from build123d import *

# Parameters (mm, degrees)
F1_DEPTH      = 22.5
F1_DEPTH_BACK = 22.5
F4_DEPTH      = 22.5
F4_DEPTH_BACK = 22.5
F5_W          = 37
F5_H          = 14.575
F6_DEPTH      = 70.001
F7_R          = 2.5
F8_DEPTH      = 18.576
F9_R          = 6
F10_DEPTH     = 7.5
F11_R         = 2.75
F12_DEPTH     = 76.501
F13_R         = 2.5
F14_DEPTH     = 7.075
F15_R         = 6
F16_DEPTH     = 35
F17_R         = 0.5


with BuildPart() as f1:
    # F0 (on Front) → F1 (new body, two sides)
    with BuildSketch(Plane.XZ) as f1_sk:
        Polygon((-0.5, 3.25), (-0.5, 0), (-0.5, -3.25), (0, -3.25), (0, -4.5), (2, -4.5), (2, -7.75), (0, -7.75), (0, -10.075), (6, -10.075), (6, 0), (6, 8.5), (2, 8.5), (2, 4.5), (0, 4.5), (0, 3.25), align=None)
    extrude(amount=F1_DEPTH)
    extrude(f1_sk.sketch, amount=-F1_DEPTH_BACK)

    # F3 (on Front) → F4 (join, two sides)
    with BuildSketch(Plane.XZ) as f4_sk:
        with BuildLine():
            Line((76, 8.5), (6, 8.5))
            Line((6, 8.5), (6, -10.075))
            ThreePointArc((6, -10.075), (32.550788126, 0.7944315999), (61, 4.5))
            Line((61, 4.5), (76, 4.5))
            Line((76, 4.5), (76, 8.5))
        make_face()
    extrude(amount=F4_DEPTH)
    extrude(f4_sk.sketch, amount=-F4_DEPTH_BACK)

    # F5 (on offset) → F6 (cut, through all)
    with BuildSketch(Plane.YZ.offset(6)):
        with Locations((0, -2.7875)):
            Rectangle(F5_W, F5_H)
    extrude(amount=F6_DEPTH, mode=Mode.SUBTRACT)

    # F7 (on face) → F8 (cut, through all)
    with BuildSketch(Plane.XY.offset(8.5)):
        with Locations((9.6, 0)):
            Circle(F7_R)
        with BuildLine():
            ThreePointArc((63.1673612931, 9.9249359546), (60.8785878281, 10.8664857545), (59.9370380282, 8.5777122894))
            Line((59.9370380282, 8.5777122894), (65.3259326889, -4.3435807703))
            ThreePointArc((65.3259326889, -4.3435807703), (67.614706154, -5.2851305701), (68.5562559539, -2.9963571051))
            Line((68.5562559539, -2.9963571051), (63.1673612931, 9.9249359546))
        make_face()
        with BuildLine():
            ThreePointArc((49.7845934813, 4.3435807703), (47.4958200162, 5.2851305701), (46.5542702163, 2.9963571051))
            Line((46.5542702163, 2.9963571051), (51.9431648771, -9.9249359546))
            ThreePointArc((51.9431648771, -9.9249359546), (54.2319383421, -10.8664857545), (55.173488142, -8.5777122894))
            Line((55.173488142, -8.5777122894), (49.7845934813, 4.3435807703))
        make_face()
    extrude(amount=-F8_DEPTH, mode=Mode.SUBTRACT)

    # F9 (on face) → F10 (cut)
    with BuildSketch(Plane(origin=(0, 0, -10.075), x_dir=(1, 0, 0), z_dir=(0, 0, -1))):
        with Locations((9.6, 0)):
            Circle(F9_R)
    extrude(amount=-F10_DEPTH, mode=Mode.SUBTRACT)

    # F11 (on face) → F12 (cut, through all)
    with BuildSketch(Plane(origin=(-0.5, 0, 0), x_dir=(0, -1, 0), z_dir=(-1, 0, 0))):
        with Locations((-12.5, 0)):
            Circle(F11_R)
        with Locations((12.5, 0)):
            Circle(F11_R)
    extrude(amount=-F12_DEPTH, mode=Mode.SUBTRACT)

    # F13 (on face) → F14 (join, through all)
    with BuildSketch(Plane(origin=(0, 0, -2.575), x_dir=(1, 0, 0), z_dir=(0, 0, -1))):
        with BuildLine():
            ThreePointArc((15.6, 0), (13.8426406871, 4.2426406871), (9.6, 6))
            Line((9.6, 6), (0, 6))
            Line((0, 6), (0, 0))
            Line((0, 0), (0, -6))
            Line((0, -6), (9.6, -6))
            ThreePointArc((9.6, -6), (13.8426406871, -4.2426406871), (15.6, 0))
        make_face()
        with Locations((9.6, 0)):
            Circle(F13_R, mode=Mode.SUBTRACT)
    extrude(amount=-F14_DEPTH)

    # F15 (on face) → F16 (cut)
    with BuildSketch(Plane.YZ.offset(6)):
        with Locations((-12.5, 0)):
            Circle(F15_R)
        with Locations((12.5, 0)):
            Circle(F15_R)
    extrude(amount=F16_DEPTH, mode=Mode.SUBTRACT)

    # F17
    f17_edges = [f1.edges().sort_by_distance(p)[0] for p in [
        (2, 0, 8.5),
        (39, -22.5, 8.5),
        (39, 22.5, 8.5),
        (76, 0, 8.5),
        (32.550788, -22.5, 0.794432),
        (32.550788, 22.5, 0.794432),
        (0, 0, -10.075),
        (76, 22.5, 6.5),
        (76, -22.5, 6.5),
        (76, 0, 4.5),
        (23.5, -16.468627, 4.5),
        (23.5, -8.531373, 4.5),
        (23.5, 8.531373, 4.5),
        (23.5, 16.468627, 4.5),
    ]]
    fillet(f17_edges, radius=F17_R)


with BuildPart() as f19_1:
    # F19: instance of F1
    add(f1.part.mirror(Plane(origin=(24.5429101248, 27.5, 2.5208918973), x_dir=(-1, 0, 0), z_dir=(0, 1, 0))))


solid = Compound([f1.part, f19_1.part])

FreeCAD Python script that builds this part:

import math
import FreeCAD as App
import Part
import Sketcher
from FreeCAD import Vector


def edges_at(feature, points):
    """Names of the edges that pass closest to the given points."""
    edges = feature.Shape.Edges
    near = lambda p: min(range(len(edges)), key=lambda i: edges[i].distToShape(Part.Vertex(*p))[0])
    return sorted({f"Edge{near(p) + 1}" for p in points})

doc = App.newDocument("Part")
body = doc.addObject("PartDesign::Body", "Body")

sketch1 = body.newObject("Sketcher::SketchObject", "Sketch")
sketch1.AttachmentSupport = (doc.getObject("XZ_Plane"), [""])
sketch1.MapMode = "FlatFace"
sketch1.addGeometry([
    Part.LineSegment(Vector(-0.5, 3.2, 0), Vector(-0.5, -3.2, 0)),
    Part.LineSegment(Vector(-0.5, -3.2, 0), Vector(0, -3.2, 0)),
    Part.LineSegment(Vector(0, -3.2, 0), Vector(0, -4.5, 0)),
    Part.LineSegment(Vector(0, -4.5, 0), Vector(2, -4.5, 0)),
    Part.LineSegment(Vector(2, -4.5, 0), Vector(2, -7.8, 0)),
    Part.LineSegment(Vector(2, -7.8, 0), Vector(0, -7.8, 0)),
    Part.LineSegment(Vector(0, -7.8, 0), Vector(0, -10.1, 0)),
    Part.LineSegment(Vector(0, -10.1, 0), Vector(6, -10.1, 0)),
    Part.LineSegment(Vector(6, -10.1, 0), Vector(6, 8.5, 0)),
    Part.LineSegment(Vector(6, 8.5, 0), Vector(2, 8.5, 0)),
    Part.LineSegment(Vector(2, 8.5, 0), Vector(2, 4.5, 0)),
    Part.LineSegment(Vector(2, 4.5, 0), Vector(0, 4.5, 0)),
    Part.LineSegment(Vector(0, 4.5, 0), Vector(0, 3.2, 0)),
    Part.LineSegment(Vector(0, 3.2, 0), Vector(-0.5, 3.2, 0)),
], False)
sketch1.addConstraint([
    Sketcher.Constraint("Coincident", 0, 2, 1, 1),
    Sketcher.Constraint("Coincident", 1, 2, 2, 1),
    Sketcher.Constraint("Coincident", 2, 2, 3, 1),
    Sketcher.Constraint("Coincident", 3, 2, 4, 1),
    Sketcher.Constraint("Coincident", 4, 2, 5, 1),
    Sketcher.Constraint("Coincident", 5, 2, 6, 1),
    Sketcher.Constraint("Coincident", 6, 2, 7, 1),
    Sketcher.Constraint("Coincident", 7, 2, 8, 1),
    Sketcher.Constraint("Coincident", 8, 2, 9, 1),
    Sketcher.Constraint("Coincident", 9, 2, 10, 1),
    Sketcher.Constraint("Coincident", 10, 2, 11, 1),
    Sketcher.Constraint("Coincident", 11, 2, 12, 1),
    Sketcher.Constraint("Coincident", 12, 2, 13, 1),
    Sketcher.Constraint("Coincident", 13, 2, 0, 1),
    Sketcher.Constraint("Vertical", 0),
    Sketcher.Constraint("Horizontal", 1),
    Sketcher.Constraint("Vertical", 2),
    Sketcher.Constraint("Horizontal", 3),
    Sketcher.Constraint("Vertical", 4),
    Sketcher.Constraint("Horizontal", 5),
    Sketcher.Constraint("Vertical", 6),
    Sketcher.Constraint("Horizontal", 7),
    Sketcher.Constraint("Vertical", 8),
    Sketcher.Constraint("Horizontal", 9),
    Sketcher.Constraint("Vertical", 10),
    Sketcher.Constraint("Horizontal", 11),
    Sketcher.Constraint("Vertical", 12),
    Sketcher.Constraint("Horizontal", 13),
    Sketcher.Constraint("Symmetric", 2, 2, 11, 2, -1, 1),
    Sketcher.Constraint("Symmetric", 1, 2, 12, 2, -1),
    Sketcher.Constraint("PointOnObject", 5, 2, -2),
    Sketcher.Constraint("Vertical", 4, 2, 9, 2),
    Sketcher.Constraint("Equal", 9, 10),
    Sketcher.Constraint("DistanceX", 3, 1, 3, 2, 2.0),
    Sketcher.Constraint("DistanceX", 7, 1, 7, 2, 6.0),
    Sketcher.Constraint("DistanceX", 1, 1, 1, 2, 0.5),
    Sketcher.Constraint("DistanceY", 0, 2, 0, 1, 6.5),
    Sketcher.Constraint("DistanceY", 3, 2, 8, 2, 13.0),
    Sketcher.Constraint("DistanceY", 4, 2, 4, 1, 3.25),
    Sketcher.Constraint("DistanceY", 6, 2, 6, 1, 2.325),
])
pad1 = body.newObject("PartDesign::Pad", "Pad")
pad1.Profile = sketch1
pad1.Type = "TwoLengths"
pad1.Length = 22.5
pad1.Length2 = 22.5

sketch2 = body.newObject("Sketcher::SketchObject", "Sketch001")
sketch2.AttachmentSupport = (doc.getObject("XZ_Plane"), [""])
sketch2.MapMode = "FlatFace"
sketch2.addGeometry([
    Part.LineSegment(Vector(76, 8.5, 0), Vector(6, 8.5, 0)),
    Part.LineSegment(Vector(6, 8.5, 0), Vector(6, -10.1, 0)),
    Part.ArcOfCircle(Part.Circle(Vector(61, -106.6, 0), Vector(0, 0, 1), 111.1), math.radians(90), math.radians(120)),
    Part.LineSegment(Vector(61, 4.5, 0), Vector(76, 4.5, 0)),
    Part.LineSegment(Vector(76, 4.5, 0), Vector(76, 8.5, 0)),
], False)
sketch2.addConstraint([
    Sketcher.Constraint("Coincident", 0, 2, 1, 1),
    Sketcher.Constraint("Coincident", 1, 2, 2, 2),
    Sketcher.Constraint("Tangent", 2, 1, 3, 1),
    Sketcher.Constraint("Coincident", 3, 2, 4, 1),
    Sketcher.Constraint("Coincident", 4, 2, 0, 1),
    Sketcher.Constraint("Horizontal", 0),
    Sketcher.Constraint("Vertical", 1),
    Sketcher.Constraint("Horizontal", 3),
    Sketcher.Constraint("Vertical", 4),
    Sketcher.Constraint("DistanceX", 0, 2, 0, 1, 70.0),
    Sketcher.Constraint("DistanceX", 3, 1, 3, 2, 15.0),
    Sketcher.Constraint("DistanceY", 4, 1, 4, 2, 4.0),
    Sketcher.Constraint("DistanceX", -1, 1, 2, 3, 61.0),
    Sketcher.Constraint("DistanceY", -1, 1, 0, 2, 8.5),
    Sketcher.Constraint("DistanceY", 1, 2, 1, 1, 18.575),
])
pad2 = body.newObject("PartDesign::Pad", "Pad001")
pad2.Profile = sketch2
pad2.Type = "TwoLengths"
pad2.Length = 22.5
pad2.Length2 = 22.5

sketch3 = body.newObject("Sketcher::SketchObject", "Sketch002")
sketch3.AttachmentSupport = (doc.getObject("YZ_Plane"), [""])
sketch3.MapMode = "FlatFace"
sketch3.AttachmentOffset = App.Placement(Vector(0, 0, 6), App.Rotation())
sketch3.addGeometry([
    Part.LineSegment(Vector(-18, 4, 0), Vector(-18, -10, 0)),
    Part.LineSegment(Vector(-18, -10, 0), Vector(18, -10, 0)),
    Part.LineSegment(Vector(18, -10, 0), Vector(18, 4, 0)),
    Part.LineSegment(Vector(18, 4, 0), Vector(-18, 4, 0)),
], False)
sketch3.addConstraint([
    Sketcher.Constraint("Coincident", 0, 2, 1, 1),
    Sketcher.Constraint("Coincident", 1, 2, 2, 1),
    Sketcher.Constraint("Coincident", 2, 2, 3, 1),
    Sketcher.Constraint("Coincident", 3, 2, 0, 1),
    Sketcher.Constraint("Vertical", 0),
    Sketcher.Constraint("Horizontal", 1),
    Sketcher.Constraint("Vertical", 2),
    Sketcher.Constraint("Horizontal", 3),
    Sketcher.Constraint("DistanceX", 1, 1, 1, 2, 37.0),
    Sketcher.Constraint("DistanceX", 0, 2, -1, 1, 18.5),
    Sketcher.Constraint("DistanceY", -1, 1, 2, 2, 4.5),
    Sketcher.Constraint("DistanceY", 0, 2, 0, 1, 14.575),
])
pocket1 = body.newObject("PartDesign::Pocket", "Pocket")
pocket1.Profile = sketch3
pocket1.Type = "ThroughAll"
pocket1.Reversed = True

sketch4 = body.newObject("Sketcher::SketchObject", "Sketch003")
sketch4.AttachmentSupport = (doc.getObject("XY_Plane"), [""])
sketch4.MapMode = "FlatFace"
sketch4.AttachmentOffset = App.Placement(Vector(0, 0, 8.5), App.Rotation())
sketch4.addGeometry([
    Part.Circle(Vector(9.6, 0, 0), Vector(0, 0, 1), 2.5),
    Part.ArcOfCircle(Part.Circle(Vector(61.6, 9.3, 0), Vector(0, 0, 1), 1.8), math.radians(23), math.radians(203)),
    Part.LineSegment(Vector(59.9, 8.6, 0), Vector(65.3, -4.3, 0)),
    Part.ArcOfCircle(Part.Circle(Vector(66.9, -3.7, 0), Vector(0, 0, 1), 1.8), math.radians(-157), math.radians(23)),
    Part.LineSegment(Vector(68.6, -3, 0), Vector(63.2, 9.9, 0)),
    Part.ArcOfCircle(Part.Circle(Vector(48.2, 3.7, 0), Vector(0, 0, 1), 1.8), math.radians(23), math.radians(203)),
    Part.LineSegment(Vector(46.6, 3, 0), Vector(51.9, -9.9, 0)),
    Part.ArcOfCircle(Part.Circle(Vector(53.6, -9.3, 0), Vector(0, 0, 1), 1.8), math.radians(-157), math.radians(23)),
    Part.LineSegment(Vector(55.2, -8.6, 0), Vector(49.8, 4.3, 0)),
], False)
sketch4.addConstraint([
    Sketcher.Constraint("Tangent", 1, 2, 2, 1),
    Sketcher.Constraint("Tangent", 2, 2, 3, 1),
    Sketcher.Constraint("Tangent", 3, 2, 4, 1),
    Sketcher.Constraint("Tangent", 4, 2, 1, 1),
    Sketcher.Constraint("Tangent", 5, 2, 6, 1),
    Sketcher.Constraint("Tangent", 6, 2, 7, 1),
    Sketcher.Constraint("Tangent", 7, 2, 8, 1),
    Sketcher.Constraint("Tangent", 8, 2, 5, 1),
    Sketcher.Constraint("Equal", 1, 3),
    Sketcher.Constraint("Equal", 3, 5),
    Sketcher.Constraint("Equal", 5, 7),
    Sketcher.Constraint("PointOnObject", 0, 3, -1),
    Sketcher.Constraint("Parallel", 4, 6),
    Sketcher.Constraint("Equal", 4, 6),
    Sketcher.Constraint("Diameter", 0, 5.0),
    Sketcher.Constraint("Radius", 1, 1.75),
    Sketcher.Constraint("Distance", 2, 14.0),
    Sketcher.Constraint("DistanceX", -1, 1, 0, 3, 9.6),
    Sketcher.Constraint("DistanceX", -1, 1, 1, 3, 61.5522),
    Sketcher.Constraint("DistanceX", 5, 3, 2, 2, 17.156501),
    Sketcher.Constraint("DistanceY", 3, 3, -1, 1, 3.669969),
    Sketcher.Constraint("DistanceX", -1, 1, 5, 3, 48.169432),
    Sketcher.Constraint("DistanceY", -1, 1, 5, 3, 3.669969),
])
pocket2 = body.newObject("PartDesign::Pocket", "Pocket001")
pocket2.Profile = sketch4
pocket2.Type = "ThroughAll"

sketch5 = body.newObject("Sketcher::SketchObject", "Sketch004")
sketch5.AttachmentSupport = (doc.getObject("XY_Plane"), [""])
sketch5.MapMode = "FlatFace"
sketch5.AttachmentOffset = App.Placement(Vector(0, 0, -10.075), App.Rotation())
sketch5.addGeometry(Part.Circle(Vector(10, 0, 0), Vector(0, 0, 1), 6), False)
sketch5.addConstraint([
    Sketcher.Constraint("PointOnObject", 0, 3, -1),
    Sketcher.Constraint("Diameter", 0, 12.0),
    Sketcher.Constraint("DistanceX", -1, 1, 0, 3, 9.6),
])
pocket3 = body.newObject("PartDesign::Pocket", "Pocket002")
pocket3.Profile = sketch5
pocket3.Length = 7.5
pocket3.Reversed = True

sketch6 = body.newObject("Sketcher::SketchObject", "Sketch005")
sketch6.AttachmentSupport = (doc.getObject("YZ_Plane"), [""])
sketch6.MapMode = "FlatFace"
sketch6.AttachmentOffset = App.Placement(Vector(0, 0, -0.5), App.Rotation())
sketch6.addGeometry([
    Part.Circle(Vector(12.5, 0, 0), Vector(0, 0, 1), 2.8),
    Part.Circle(Vector(-12.5, 0, 0), Vector(0, 0, 1), 2.8),
], False)
sketch6.addConstraint([
    Sketcher.Constraint("Equal", 0, 1),
    Sketcher.Constraint("Symmetric", 0, 3, 1, 3, -1, 1),
    Sketcher.Constraint("PointOnObject", 0, 3, -1),
    Sketcher.Constraint("Diameter", 0, 5.5),
    Sketcher.Constraint("DistanceX", 1, 3, 0, 3, 25.0),
])
pocket4 = body.newObject("PartDesign::Pocket", "Pocket003")
pocket4.Profile = sketch6
pocket4.Type = "ThroughAll"
pocket4.Reversed = True

sketch7 = body.newObject("Sketcher::SketchObject", "Sketch006")
sketch7.AttachmentSupport = (doc.getObject("XY_Plane"), [""])
sketch7.MapMode = "FlatFace"
sketch7.AttachmentOffset = App.Placement(Vector(0, 0, -2.575), App.Rotation())
sketch7.addGeometry([
    Part.ArcOfCircle(Part.Circle(Vector(9.6, 0, 0), Vector(0, 0, 1), 6), math.radians(-90), math.radians(0)),
    Part.LineSegment(Vector(9.6, -6, 0), Vector(0, -6, 0)),
    Part.LineSegment(Vector(0, -6, 0), Vector(0, 6, 0)),
    Part.LineSegment(Vector(0, 6, 0), Vector(9.6, 6, 0)),
    Part.ArcOfCircle(Part.Circle(Vector(9.6, 0, 0), Vector(0, 0, 1), 6), math.radians(0), math.radians(90)),
    Part.Circle(Vector(9.6, 0, 0), Vector(0, 0, 1), 2.5),
], False)
sketch7.addConstraint([
    Sketcher.Constraint("Tangent", 0, 1, 1, 1),
    Sketcher.Constraint("Coincident", 1, 2, 2, 1),
    Sketcher.Constraint("Coincident", 2, 2, 3, 1),
    Sketcher.Constraint("Tangent", 3, 2, 4, 2),
    Sketcher.Constraint("Tangent", 4, 1, 0, 2),
    Sketcher.Constraint("Horizontal", 1),
    Sketcher.Constraint("Vertical", 2),
    Sketcher.Constraint("Horizontal", 3),
    Sketcher.Constraint("Coincident", 5, 3, 0, 3),
    Sketcher.Constraint("Equal", 0, 4),
    Sketcher.Constraint("Symmetric", 1, 2, 2, 2, -1, 1),
    Sketcher.Constraint("PointOnObject", 4, 1, -1),
    Sketcher.Constraint("Diameter", 5, 5.0),
    Sketcher.Constraint("Radius", 0, 6.0),
    Sketcher.Constraint("DistanceX", 1, 2, 1, 1, 9.6),
])
pad3 = body.newObject("PartDesign::Pad", "Pad002")
pad3.Profile = sketch7
pad3.Length = 7.075

sketch8 = body.newObject("Sketcher::SketchObject", "Sketch007")
sketch8.AttachmentSupport = (doc.getObject("YZ_Plane"), [""])
sketch8.MapMode = "FlatFace"
sketch8.AttachmentOffset = App.Placement(Vector(0, 0, 6), App.Rotation())
sketch8.addGeometry([
    Part.Circle(Vector(-12, 0, 0), Vector(0, 0, 1), 6),
    Part.Circle(Vector(12, 0, 0), Vector(0, 0, 1), 6),
], False)
sketch8.addConstraint([
    Sketcher.Constraint("Equal", 0, 1),
    Sketcher.Constraint("Symmetric", 0, 3, 1, 3, -1, 1),
    Sketcher.Constraint("PointOnObject", 0, 3, -1),
    Sketcher.Constraint("Diameter", 0, 12.0),
    Sketcher.Constraint("DistanceX", 0, 3, 1, 3, 25.0),
])
pocket5 = body.newObject("PartDesign::Pocket", "Pocket004")
pocket5.Profile = sketch8
pocket5.Length = 35
pocket5.Reversed = True
doc.recompute()

fillet = body.newObject("PartDesign::Fillet", "Fillet")
fillet.Base = (pocket5, edges_at(pocket5, [
    (2, 0, 8.5),
    (39, -22.5, 8.5),
    (39, 22.5, 8.5),
    (76, 0, 8.5),
    (32.551, -22.5, 0.794),
    (32.551, 22.5, 0.794),
    (0, 0, -10.075),
    (76, 22.5, 6.5),
    (76, -22.5, 6.5),
    (76, 0, 4.5),
    (23.5, -16.469, 4.5),
    (23.5, -8.531, 4.5),
    (23.5, 8.531, 4.5),
    (23.5, 16.469, 4.5),
]))
fillet.Radius = 0.5
body2 = doc.addObject("PartDesign::Body", "Body001")
doc.recompute()

mirroring = doc.addObject("Part::Mirroring", "Mirroring")
mirroring.Source = body
mirroring.Base = Vector(24.54291, 27.5, 2.520892)
mirroring.Normal = Vector(0, 1, 0)
body2.BaseFeature = mirroring
doc.recompute()
mirroring.Visibility = False

doc.recompute()
